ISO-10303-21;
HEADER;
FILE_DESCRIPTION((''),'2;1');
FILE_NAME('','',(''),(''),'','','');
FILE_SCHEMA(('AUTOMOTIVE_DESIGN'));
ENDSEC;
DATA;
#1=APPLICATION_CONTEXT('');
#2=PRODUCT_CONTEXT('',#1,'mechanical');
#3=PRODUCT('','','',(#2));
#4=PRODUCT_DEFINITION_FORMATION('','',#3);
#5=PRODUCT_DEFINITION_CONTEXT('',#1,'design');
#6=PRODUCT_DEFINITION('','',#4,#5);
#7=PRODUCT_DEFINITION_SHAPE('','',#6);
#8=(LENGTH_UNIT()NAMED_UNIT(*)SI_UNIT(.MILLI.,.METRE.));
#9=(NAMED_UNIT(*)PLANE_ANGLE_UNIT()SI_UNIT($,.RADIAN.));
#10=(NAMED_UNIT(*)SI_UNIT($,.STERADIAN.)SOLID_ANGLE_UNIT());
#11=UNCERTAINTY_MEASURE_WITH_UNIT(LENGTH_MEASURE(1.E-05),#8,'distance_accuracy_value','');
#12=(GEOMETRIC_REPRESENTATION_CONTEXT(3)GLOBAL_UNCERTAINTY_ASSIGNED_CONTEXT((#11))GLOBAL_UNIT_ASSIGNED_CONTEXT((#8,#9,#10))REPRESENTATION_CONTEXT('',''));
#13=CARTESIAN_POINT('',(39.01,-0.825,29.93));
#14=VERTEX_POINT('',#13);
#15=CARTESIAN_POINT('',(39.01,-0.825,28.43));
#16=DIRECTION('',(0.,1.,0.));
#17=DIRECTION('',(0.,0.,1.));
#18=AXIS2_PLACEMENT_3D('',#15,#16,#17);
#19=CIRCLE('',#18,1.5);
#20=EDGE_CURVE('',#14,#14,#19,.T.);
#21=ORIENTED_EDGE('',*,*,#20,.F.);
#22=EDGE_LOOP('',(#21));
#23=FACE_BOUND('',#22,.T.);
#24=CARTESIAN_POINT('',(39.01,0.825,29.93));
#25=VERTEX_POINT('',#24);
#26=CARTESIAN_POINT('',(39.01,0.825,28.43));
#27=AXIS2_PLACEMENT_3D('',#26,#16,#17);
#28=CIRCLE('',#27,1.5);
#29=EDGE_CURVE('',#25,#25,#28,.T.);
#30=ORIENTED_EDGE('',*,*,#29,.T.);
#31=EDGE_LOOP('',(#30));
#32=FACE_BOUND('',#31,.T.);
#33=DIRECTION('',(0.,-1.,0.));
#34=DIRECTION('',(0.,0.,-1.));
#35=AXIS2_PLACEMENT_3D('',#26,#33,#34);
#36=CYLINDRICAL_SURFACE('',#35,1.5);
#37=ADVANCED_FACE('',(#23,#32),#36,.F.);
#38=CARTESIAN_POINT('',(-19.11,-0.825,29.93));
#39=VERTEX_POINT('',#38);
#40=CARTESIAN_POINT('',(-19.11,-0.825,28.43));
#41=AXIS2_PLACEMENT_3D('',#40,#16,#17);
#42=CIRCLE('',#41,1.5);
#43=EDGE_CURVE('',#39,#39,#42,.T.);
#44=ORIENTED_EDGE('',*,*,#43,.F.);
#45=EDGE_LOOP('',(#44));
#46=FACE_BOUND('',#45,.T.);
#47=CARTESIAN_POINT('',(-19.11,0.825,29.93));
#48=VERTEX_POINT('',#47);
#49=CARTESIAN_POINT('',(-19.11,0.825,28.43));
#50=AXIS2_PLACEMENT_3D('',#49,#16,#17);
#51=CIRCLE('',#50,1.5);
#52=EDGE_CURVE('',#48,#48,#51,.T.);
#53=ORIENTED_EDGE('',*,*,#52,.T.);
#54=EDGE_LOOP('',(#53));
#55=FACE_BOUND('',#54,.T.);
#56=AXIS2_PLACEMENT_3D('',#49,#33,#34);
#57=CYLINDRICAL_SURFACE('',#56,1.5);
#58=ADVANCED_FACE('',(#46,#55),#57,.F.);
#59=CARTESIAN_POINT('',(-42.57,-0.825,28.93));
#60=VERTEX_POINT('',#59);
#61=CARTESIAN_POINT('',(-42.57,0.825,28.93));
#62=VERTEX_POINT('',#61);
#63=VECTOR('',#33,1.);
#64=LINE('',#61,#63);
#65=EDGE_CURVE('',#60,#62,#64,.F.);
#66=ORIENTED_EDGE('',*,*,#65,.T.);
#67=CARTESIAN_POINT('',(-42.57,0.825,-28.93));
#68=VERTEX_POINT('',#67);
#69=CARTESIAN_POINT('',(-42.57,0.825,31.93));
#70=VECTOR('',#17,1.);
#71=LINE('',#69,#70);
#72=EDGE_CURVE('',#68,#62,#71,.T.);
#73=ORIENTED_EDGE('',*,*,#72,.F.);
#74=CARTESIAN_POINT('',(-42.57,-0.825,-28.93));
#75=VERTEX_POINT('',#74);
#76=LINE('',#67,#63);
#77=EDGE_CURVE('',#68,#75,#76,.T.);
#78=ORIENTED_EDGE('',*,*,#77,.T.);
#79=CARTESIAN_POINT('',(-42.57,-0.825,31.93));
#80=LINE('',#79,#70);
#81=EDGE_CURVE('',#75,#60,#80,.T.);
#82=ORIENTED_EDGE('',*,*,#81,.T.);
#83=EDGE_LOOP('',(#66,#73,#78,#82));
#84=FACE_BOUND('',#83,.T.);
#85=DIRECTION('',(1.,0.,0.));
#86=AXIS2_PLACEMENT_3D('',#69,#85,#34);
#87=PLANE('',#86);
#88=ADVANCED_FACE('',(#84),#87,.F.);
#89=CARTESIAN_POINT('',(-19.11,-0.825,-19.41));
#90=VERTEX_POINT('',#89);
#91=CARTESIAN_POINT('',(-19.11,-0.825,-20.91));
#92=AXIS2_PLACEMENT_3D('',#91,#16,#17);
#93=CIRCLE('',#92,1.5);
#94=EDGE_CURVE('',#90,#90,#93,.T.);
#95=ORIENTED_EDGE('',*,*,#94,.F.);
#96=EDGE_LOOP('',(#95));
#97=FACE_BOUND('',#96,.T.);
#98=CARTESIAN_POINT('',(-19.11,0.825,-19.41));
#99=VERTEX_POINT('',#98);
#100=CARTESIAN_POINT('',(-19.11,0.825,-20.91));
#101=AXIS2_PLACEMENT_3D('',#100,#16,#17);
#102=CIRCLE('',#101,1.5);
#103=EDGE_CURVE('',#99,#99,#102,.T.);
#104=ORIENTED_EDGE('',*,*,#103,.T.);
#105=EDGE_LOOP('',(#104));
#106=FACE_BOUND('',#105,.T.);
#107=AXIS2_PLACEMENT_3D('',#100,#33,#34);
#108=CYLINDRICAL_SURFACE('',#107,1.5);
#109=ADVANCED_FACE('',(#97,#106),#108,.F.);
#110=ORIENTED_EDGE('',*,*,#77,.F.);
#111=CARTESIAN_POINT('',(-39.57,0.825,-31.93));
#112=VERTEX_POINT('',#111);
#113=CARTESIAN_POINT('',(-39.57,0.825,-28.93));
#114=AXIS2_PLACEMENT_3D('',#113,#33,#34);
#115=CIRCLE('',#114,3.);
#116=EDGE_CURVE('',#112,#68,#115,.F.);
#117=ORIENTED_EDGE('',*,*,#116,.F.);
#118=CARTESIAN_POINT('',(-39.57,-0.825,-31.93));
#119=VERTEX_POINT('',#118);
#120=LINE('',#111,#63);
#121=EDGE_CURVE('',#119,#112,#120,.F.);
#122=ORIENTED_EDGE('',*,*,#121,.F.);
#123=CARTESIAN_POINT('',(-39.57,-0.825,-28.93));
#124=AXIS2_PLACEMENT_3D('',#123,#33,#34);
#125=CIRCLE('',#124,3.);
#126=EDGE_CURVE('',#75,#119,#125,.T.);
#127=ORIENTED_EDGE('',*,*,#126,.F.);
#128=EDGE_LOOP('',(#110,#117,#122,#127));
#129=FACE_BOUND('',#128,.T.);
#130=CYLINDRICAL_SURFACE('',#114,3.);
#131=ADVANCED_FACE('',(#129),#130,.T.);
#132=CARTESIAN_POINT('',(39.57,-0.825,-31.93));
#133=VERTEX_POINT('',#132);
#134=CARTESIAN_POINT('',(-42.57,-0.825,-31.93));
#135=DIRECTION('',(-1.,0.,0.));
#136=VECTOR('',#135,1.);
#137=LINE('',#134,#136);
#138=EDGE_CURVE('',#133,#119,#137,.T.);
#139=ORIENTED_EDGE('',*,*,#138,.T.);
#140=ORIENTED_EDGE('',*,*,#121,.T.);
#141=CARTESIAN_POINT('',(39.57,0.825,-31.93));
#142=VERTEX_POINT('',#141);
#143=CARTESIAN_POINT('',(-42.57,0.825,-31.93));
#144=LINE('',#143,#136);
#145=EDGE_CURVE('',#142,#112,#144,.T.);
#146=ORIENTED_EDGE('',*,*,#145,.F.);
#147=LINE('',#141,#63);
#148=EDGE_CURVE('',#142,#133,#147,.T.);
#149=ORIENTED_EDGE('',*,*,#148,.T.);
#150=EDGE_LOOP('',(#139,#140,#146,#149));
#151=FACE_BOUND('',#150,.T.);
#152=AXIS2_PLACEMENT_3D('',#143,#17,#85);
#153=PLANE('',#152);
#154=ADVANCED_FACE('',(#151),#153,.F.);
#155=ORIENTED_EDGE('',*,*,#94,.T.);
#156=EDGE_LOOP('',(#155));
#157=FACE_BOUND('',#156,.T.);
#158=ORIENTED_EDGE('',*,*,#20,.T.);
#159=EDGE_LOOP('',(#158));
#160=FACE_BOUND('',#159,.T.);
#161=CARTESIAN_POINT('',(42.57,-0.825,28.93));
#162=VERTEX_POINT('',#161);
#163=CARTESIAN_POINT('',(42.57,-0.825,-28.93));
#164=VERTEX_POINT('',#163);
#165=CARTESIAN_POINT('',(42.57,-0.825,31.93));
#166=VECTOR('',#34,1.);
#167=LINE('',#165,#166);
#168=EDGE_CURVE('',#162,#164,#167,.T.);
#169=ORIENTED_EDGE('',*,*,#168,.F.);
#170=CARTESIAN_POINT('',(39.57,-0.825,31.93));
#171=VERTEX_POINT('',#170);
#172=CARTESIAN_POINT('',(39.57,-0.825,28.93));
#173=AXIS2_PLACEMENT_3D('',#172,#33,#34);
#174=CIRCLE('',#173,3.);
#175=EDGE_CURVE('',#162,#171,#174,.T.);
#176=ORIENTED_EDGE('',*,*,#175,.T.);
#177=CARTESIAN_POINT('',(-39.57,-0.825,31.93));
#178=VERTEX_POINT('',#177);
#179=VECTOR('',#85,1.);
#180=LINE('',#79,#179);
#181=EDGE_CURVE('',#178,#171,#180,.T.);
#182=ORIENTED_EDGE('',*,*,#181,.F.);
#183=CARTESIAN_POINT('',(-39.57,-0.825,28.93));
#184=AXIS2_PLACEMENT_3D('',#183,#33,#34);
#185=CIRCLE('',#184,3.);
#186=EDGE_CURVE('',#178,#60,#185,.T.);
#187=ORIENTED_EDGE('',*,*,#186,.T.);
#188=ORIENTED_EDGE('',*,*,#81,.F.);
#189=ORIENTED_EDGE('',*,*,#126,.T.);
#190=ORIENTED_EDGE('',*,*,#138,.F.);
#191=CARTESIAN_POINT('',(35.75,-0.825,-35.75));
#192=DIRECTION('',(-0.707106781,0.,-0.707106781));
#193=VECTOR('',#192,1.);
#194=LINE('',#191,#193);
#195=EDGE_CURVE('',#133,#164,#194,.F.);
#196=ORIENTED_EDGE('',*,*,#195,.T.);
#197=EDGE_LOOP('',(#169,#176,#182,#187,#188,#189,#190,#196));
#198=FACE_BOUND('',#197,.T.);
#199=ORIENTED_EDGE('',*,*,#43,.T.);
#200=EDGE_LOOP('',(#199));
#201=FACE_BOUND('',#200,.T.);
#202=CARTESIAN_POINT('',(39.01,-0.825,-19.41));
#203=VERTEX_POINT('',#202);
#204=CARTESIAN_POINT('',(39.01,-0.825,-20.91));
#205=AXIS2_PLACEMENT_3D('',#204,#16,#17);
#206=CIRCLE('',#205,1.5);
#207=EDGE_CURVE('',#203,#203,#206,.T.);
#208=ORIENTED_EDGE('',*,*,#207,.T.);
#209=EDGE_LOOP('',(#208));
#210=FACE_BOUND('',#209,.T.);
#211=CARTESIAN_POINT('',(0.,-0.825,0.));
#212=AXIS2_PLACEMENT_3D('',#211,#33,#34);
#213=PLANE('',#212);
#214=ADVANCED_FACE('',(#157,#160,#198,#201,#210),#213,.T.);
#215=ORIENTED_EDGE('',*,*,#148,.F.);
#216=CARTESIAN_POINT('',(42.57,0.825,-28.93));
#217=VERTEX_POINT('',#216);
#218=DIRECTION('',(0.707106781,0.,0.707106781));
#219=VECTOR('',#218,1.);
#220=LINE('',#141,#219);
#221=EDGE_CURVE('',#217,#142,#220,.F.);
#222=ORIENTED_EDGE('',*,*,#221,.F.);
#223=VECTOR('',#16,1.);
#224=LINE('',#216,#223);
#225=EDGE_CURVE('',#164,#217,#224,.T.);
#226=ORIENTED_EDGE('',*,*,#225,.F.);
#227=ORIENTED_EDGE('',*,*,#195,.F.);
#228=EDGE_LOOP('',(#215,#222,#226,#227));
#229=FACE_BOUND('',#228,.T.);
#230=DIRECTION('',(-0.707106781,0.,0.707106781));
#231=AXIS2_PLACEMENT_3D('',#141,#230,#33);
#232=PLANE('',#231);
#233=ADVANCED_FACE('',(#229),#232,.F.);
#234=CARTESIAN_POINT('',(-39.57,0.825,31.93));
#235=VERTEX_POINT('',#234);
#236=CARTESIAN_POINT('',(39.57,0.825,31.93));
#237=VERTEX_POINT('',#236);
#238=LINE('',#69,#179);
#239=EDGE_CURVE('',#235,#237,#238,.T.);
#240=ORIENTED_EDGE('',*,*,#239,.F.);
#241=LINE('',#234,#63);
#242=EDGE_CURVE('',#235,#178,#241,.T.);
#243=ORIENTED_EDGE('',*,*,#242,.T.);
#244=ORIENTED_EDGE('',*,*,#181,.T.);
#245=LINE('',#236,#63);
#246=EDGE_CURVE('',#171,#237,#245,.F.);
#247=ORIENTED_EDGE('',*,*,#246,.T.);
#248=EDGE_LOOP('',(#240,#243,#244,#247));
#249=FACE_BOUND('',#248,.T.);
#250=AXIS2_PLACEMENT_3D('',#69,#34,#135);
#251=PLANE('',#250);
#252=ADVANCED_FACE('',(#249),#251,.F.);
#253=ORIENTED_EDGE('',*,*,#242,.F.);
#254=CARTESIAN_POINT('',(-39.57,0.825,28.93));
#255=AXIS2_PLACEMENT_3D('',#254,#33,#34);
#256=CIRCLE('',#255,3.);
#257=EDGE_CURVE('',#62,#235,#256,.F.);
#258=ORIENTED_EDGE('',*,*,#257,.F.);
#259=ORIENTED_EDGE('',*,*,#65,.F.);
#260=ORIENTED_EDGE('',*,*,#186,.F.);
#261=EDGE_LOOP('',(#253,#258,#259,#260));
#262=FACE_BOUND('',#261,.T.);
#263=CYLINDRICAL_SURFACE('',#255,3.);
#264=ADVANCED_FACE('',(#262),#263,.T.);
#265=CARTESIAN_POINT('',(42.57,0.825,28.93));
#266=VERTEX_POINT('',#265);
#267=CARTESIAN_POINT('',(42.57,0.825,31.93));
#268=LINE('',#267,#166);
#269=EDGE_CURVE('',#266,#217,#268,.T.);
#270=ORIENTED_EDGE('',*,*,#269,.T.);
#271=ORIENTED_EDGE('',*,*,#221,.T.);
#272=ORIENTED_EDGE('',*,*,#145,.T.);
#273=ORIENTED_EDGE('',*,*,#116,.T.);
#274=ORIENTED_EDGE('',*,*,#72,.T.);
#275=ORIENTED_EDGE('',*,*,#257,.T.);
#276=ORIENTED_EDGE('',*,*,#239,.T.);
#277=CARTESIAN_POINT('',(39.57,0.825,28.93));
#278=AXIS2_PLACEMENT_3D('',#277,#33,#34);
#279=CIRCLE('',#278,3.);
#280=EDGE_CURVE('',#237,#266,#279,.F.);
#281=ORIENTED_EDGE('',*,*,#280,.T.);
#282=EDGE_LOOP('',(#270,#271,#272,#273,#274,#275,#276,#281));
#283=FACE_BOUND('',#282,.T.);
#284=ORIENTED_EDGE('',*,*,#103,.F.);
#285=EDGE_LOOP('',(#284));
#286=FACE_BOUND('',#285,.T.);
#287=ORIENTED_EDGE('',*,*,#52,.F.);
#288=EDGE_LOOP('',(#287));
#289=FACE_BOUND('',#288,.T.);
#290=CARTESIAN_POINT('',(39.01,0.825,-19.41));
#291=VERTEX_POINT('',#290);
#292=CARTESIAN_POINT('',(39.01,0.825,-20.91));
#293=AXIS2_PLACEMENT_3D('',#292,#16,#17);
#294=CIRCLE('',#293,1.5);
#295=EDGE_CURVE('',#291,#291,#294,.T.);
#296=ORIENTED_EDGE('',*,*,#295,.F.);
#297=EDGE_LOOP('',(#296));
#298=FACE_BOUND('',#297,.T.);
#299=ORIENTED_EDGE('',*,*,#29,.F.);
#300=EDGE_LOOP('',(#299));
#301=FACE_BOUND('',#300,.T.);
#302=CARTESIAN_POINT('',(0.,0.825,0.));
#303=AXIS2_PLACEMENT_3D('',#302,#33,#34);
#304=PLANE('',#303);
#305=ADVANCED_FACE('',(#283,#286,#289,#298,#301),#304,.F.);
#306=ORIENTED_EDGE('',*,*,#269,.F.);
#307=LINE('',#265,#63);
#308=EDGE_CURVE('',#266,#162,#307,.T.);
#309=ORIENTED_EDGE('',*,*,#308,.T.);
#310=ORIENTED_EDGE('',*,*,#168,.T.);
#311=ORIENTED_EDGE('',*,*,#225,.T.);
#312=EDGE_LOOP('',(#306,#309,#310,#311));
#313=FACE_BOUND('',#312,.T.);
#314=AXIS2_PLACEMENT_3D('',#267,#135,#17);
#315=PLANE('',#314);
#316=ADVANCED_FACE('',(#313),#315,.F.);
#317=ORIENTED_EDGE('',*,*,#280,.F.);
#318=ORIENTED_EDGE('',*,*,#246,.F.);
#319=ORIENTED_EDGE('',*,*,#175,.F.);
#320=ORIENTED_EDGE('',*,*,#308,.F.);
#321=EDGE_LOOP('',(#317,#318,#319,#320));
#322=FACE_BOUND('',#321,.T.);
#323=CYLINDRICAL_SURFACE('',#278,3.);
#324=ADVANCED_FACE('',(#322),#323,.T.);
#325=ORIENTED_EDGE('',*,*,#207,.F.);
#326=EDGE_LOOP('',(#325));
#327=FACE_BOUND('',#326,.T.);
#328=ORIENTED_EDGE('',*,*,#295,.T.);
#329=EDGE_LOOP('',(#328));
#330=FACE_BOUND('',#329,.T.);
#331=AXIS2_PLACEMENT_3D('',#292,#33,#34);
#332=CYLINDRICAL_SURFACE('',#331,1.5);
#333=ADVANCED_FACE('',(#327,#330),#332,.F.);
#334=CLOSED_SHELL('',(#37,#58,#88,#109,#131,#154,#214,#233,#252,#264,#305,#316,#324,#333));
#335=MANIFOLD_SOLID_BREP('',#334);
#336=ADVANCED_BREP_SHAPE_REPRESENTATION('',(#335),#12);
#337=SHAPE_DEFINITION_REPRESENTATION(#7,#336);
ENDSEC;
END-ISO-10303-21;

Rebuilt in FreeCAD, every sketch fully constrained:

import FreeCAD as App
import Part
import Sketcher

V = App.Vector
Q = App.Units.Quantity


def edges_at(feature, points):
    """Names of the edges that pass closest to the given points."""
    edges = feature.Shape.Edges
    near = lambda p: min(range(len(edges)), key=lambda i: edges[i].distToShape(Part.Vertex(*p))[0])
    return sorted({f"Edge{near(p) + 1}" for p in points})

doc = App.newDocument("Part")
body = doc.addObject("PartDesign::Body", "Body")

sketch1 = doc.addObject("Sketcher::SketchObject", "Sketch")
body.addObject(sketch1)
sketch1.AttachmentSupport = (doc.XZ_Plane, [""])
sketch1.MapMode = "FlatFace"
sketch1.addGeometry([
    Part.LineSegment(V(-42.6, -31.9, 0), V(-42.6, 31.9, 0)),
    Part.LineSegment(V(-42.6, 31.9, 0), V(42.6, 31.9, 0)),
    Part.LineSegment(V(42.6, 31.9, 0), V(42.6, -31.9, 0)),
    Part.LineSegment(V(42.6, -31.9, 0), V(-42.6, -31.9, 0)),
    Part.Circle(V(-19.1, 28.4, 0), V(0, 0, 1), 1.5),
    Part.Circle(V(39, 28.4, 0), V(0, 0, 1), 1.5),
    Part.Circle(V(-19.1, -20.9, 0), V(0, 0, 1), 1.5),
    Part.Circle(V(39, -20.9, 0), V(0, 0, 1), 1.5),
], False)
sketch1.addConstraint([
    Sketcher.Constraint("Coincident", 0, 2, 1, 1),
    Sketcher.Constraint("Coincident", 1, 2, 2, 1),
    Sketcher.Constraint("Coincident", 2, 2, 3, 1),
    Sketcher.Constraint("Coincident", 3, 2, 0, 1),
    Sketcher.Constraint("Vertical", 0),
    Sketcher.Constraint("Horizontal", 1),
    Sketcher.Constraint("Vertical", 2),
    Sketcher.Constraint("Horizontal", 3),
    Sketcher.Constraint("Equal", 4, 5),
    Sketcher.Constraint("Equal", 5, 6),
    Sketcher.Constraint("Equal", 6, 7),
    Sketcher.Constraint("Symmetric", 0, 2, 2, 2, -1, 1),
    Sketcher.Constraint("Horizontal", 4, 3, 5, 3),
    Sketcher.Constraint("Horizontal", 6, 3, 7, 3),
    Sketcher.Constraint("Vertical", 4, 3, 6, 3),
    Sketcher.Constraint("Vertical", 5, 3, 7, 3),
    Sketcher.Constraint("Diameter", 4, Q("3 mm")),
    Sketcher.Constraint("DistanceX", 1, 1, 1, 2, Q("85.14 mm")),
    Sketcher.Constraint("DistanceY", 0, 1, 0, 2, Q("63.86 mm")),
    Sketcher.Constraint("DistanceY", 4, 3, 0, 2, Q("3.5 mm")),
    Sketcher.Constraint("DistanceX", 4, 3, -1, 1, Q("19.11 mm")),
    Sketcher.Constraint("DistanceX", -1, 1, 5, 3, Q("39.01 mm")),
    Sketcher.Constraint("DistanceY", 6, 3, -1, 1, Q("20.91 mm")),
])
pad1 = doc.addObject("PartDesign::Pad", "Pad")
body.addObject(pad1)
pad1.Profile = sketch1
pad1.Length = 1.65
pad1.Midplane = True
doc.recompute()

fillet = doc.addObject("PartDesign::Fillet", "Fillet")
body.addObject(fillet)
fillet.Base = (pad1, edges_at(pad1, [(42.57, 0, 31.93), (-42.57, 0, 31.93), (-42.57, 0, -31.93)]))
fillet.Radius = 3
doc.recompute()

chamfer = doc.addObject("PartDesign::Chamfer", "Chamfer")
body.addObject(chamfer)
chamfer.Base = (fillet, edges_at(fillet, [(42.57, 0, -31.93)]))
chamfer.Size = 3

doc.recompute()
